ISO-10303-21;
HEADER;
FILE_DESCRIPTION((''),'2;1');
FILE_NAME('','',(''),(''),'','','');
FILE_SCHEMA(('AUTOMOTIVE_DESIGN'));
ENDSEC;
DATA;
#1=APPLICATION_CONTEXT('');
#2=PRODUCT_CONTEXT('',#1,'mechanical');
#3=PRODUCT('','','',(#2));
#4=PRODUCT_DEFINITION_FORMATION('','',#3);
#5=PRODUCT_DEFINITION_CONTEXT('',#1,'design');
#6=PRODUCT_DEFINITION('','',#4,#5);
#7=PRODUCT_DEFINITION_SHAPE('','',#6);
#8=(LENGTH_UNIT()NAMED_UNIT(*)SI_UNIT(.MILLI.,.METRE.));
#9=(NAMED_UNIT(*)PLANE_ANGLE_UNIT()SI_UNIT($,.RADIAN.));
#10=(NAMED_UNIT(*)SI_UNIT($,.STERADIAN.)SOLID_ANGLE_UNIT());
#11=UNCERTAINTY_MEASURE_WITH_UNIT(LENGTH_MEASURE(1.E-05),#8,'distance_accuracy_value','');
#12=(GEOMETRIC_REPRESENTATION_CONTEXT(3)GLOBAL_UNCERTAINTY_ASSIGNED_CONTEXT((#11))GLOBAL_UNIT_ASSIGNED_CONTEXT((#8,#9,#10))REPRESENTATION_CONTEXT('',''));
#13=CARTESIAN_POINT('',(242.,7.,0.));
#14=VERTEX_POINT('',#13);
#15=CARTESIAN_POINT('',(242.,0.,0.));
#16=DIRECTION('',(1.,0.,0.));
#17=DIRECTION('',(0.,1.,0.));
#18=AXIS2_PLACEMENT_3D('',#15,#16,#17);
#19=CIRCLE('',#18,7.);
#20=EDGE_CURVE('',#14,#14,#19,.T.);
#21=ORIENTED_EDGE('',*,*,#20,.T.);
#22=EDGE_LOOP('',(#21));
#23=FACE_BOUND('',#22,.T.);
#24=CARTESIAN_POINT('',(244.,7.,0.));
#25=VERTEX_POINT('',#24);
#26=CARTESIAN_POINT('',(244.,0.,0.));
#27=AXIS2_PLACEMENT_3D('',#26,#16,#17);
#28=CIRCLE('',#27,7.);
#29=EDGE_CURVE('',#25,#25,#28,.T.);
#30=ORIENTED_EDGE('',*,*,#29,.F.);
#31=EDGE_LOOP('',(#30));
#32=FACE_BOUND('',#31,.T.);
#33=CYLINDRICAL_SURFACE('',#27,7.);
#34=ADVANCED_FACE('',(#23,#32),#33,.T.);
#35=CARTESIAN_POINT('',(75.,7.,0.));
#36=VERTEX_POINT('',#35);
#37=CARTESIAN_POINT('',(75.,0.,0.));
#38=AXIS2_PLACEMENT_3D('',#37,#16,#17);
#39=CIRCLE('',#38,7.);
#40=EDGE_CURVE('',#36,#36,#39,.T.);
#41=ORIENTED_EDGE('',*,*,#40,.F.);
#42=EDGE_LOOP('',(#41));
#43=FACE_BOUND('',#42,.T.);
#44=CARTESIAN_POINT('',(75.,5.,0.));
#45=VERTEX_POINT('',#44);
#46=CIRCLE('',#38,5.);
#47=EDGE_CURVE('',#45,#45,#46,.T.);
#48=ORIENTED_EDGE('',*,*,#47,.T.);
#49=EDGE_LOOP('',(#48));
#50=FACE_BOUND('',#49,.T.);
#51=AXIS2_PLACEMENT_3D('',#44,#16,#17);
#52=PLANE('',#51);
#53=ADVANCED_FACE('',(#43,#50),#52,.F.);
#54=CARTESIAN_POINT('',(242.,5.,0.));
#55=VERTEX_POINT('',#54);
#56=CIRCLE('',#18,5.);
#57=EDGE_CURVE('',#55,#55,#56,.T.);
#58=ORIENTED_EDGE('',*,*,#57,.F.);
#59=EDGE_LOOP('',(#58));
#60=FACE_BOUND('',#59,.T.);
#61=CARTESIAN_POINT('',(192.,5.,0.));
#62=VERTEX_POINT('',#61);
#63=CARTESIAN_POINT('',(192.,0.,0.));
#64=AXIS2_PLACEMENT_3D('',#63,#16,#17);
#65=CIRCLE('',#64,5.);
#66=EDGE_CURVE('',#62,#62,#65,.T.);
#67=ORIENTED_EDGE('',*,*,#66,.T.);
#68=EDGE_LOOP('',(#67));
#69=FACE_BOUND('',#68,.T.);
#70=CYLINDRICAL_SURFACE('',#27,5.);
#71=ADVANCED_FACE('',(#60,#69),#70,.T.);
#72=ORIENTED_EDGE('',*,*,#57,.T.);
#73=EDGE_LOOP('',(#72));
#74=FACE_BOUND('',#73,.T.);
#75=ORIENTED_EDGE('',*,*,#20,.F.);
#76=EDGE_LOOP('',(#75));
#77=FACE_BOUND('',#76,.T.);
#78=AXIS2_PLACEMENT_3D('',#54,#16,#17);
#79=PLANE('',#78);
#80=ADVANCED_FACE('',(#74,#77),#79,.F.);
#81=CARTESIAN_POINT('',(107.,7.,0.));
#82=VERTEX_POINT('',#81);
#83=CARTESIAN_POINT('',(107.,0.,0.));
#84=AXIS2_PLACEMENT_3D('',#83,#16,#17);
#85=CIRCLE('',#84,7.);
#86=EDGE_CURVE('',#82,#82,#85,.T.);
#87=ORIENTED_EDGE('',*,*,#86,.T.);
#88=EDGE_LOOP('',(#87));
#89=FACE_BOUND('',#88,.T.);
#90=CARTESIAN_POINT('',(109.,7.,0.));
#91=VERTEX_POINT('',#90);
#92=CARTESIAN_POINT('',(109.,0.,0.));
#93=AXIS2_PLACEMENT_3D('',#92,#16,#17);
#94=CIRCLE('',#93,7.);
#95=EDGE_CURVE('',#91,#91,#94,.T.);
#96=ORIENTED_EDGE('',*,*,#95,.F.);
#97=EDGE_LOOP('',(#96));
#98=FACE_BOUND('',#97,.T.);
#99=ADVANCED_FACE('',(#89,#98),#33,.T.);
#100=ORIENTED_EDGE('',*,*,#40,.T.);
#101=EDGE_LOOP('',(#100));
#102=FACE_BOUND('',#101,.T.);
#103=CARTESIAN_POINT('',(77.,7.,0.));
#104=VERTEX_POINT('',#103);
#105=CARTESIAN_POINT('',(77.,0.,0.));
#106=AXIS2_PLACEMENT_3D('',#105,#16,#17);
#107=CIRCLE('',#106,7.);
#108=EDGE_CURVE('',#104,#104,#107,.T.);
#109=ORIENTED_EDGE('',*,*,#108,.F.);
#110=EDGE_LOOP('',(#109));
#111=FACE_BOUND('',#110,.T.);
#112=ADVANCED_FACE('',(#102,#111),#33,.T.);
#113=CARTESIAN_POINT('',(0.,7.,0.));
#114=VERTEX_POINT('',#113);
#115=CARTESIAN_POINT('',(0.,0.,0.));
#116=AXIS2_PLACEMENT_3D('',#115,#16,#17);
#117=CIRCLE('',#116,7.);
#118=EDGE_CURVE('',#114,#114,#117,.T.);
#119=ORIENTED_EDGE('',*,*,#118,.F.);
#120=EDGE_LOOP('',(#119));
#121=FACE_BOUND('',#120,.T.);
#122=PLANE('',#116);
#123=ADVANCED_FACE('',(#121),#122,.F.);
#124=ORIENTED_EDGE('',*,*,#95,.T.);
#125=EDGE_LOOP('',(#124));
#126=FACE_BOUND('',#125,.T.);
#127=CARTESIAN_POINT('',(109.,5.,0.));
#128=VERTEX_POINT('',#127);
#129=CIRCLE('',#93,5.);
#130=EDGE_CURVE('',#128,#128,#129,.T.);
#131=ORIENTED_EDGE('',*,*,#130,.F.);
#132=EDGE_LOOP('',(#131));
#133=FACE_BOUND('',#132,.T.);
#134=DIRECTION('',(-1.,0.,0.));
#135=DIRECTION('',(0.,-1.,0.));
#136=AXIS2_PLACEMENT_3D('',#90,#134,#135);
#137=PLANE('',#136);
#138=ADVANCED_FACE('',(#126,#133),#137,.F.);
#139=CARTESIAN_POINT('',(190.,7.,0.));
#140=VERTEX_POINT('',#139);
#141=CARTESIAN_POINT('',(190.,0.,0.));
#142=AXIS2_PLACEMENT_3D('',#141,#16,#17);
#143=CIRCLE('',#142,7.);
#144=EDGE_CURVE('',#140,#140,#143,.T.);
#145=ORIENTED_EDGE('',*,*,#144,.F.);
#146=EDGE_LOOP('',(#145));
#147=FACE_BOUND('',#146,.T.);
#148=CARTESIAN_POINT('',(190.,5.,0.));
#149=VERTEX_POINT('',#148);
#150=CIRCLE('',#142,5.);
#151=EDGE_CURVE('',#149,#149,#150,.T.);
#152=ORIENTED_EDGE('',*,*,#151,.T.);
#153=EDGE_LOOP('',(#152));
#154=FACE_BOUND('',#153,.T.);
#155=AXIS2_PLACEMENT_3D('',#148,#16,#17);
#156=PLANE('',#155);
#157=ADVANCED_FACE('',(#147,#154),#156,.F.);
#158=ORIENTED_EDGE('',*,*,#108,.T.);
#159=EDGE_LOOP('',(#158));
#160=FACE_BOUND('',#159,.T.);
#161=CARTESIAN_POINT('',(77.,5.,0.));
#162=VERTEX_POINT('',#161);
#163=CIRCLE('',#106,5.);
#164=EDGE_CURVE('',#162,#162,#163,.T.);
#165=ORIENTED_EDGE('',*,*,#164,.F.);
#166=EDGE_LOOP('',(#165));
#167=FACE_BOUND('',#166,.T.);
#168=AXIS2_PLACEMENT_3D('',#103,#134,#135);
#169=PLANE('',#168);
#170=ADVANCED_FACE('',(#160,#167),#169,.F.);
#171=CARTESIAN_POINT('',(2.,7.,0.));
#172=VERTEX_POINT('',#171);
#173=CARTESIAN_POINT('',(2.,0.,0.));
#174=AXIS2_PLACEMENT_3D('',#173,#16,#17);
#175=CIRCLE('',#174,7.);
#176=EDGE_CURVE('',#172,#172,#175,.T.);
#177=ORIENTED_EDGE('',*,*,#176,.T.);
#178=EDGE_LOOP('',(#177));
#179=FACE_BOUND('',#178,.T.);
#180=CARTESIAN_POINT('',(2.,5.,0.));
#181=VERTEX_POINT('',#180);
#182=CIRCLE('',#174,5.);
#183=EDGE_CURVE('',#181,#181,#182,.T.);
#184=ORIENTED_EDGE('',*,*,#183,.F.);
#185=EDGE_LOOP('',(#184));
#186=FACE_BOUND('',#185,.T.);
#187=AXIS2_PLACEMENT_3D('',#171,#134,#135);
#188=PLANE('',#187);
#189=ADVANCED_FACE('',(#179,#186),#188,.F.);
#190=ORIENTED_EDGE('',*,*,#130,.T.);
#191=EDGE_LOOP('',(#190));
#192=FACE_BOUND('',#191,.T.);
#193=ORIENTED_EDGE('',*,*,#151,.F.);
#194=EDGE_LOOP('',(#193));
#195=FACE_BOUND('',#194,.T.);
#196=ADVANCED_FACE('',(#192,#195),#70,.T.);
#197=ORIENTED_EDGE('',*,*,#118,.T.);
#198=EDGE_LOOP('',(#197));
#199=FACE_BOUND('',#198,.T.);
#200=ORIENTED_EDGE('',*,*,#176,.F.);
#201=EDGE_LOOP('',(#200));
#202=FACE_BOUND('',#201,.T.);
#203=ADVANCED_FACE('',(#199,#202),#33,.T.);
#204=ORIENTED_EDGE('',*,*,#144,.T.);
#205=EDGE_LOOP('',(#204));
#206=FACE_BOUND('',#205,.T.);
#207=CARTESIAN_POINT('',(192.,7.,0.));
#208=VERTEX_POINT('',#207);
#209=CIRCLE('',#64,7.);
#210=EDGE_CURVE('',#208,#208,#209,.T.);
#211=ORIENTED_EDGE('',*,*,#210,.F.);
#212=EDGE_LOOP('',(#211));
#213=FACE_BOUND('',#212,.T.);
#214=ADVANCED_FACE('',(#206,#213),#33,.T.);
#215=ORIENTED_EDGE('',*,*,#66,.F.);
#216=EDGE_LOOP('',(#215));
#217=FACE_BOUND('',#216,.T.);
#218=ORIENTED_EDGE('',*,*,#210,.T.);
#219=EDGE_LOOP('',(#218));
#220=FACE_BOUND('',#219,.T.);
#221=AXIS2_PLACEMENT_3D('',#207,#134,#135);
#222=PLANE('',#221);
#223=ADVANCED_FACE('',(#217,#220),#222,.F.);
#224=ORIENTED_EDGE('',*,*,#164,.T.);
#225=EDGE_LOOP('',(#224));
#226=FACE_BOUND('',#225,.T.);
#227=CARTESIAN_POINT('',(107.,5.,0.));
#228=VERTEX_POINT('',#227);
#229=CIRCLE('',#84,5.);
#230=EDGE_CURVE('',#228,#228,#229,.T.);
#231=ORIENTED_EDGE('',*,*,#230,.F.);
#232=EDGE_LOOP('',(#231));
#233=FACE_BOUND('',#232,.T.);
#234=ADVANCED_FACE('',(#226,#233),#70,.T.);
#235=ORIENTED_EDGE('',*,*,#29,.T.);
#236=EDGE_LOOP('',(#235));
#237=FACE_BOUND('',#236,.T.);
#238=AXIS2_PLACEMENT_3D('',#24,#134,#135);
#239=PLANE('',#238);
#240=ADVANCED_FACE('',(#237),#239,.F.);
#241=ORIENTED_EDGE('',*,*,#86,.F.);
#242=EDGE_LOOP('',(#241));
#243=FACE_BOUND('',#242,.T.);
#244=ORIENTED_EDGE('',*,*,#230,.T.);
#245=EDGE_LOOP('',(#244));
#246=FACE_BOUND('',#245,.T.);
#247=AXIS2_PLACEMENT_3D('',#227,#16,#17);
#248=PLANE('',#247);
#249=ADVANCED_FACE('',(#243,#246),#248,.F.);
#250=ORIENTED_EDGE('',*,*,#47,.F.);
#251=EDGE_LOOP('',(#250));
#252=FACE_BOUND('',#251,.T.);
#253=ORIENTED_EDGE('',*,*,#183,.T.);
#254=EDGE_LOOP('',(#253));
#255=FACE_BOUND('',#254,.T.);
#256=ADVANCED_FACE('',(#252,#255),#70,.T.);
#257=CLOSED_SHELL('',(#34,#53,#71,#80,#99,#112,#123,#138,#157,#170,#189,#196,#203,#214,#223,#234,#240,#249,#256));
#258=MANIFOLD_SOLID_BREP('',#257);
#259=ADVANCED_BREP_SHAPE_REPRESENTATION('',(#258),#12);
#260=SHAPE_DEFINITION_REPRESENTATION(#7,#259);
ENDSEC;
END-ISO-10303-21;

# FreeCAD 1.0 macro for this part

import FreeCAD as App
import Part
import Sketcher
from FreeCAD import Vector

doc = App.newDocument("Part")
body = doc.addObject("PartDesign::Body", "Body")

# Sketch on XY plane
sketch1 = body.newObject("Sketcher::SketchObject", "Sketch")
sketch1.AttachmentSupport = (doc.getObject("XY_Plane"), [""])
sketch1.MapMode = "FlatFace"
sketch1.addGeometry([
    Part.LineSegment(Vector(0, 7, 0), Vector(0, 0, 0)),  # 0
    Part.LineSegment(Vector(0, 0, 0), Vector(244, 0, 0)),  # 1
    Part.LineSegment(Vector(244, 0, 0), Vector(244, 7, 0)),  # 2
    Part.LineSegment(Vector(244, 7, 0), Vector(242, 7, 0)),  # 3
    Part.LineSegment(Vector(242, 7, 0), Vector(242, 5, 0)),  # 4
    Part.LineSegment(Vector(242, 5, 0), Vector(192, 5, 0)),  # 5
    Part.LineSegment(Vector(192, 5, 0), Vector(192, 7, 0)),  # 6
    Part.LineSegment(Vector(192, 7, 0), Vector(190, 7, 0)),  # 7
    Part.LineSegment(Vector(190, 7, 0), Vector(190, 5, 0)),  # 8
    Part.LineSegment(Vector(190, 5, 0), Vector(109, 5, 0)),  # 9
    Part.LineSegment(Vector(109, 5, 0), Vector(109, 7, 0)),  # 10
    Part.LineSegment(Vector(109, 7, 0), Vector(107, 7, 0)),  # 11
    Part.LineSegment(Vector(107, 7, 0), Vector(107, 5, 0)),  # 12
    Part.LineSegment(Vector(107, 5, 0), Vector(77, 5, 0)),  # 13
    Part.LineSegment(Vector(77, 5, 0), Vector(77, 7, 0)),  # 14
    Part.LineSegment(Vector(77, 7, 0), Vector(75, 7, 0)),  # 15
    Part.LineSegment(Vector(75, 7, 0), Vector(75, 5, 0)),  # 16
    Part.LineSegment(Vector(75, 5, 0), Vector(2, 5, 0)),  # 17
    Part.LineSegment(Vector(2, 5, 0), Vector(2, 7, 0)),  # 18
    Part.LineSegment(Vector(2, 7, 0), Vector(0, 7, 0)),  # 19
], False)
sketch1.addConstraint([
    Sketcher.Constraint("Coincident", 0, 2, 1, 1),
    Sketcher.Constraint("Coincident", 1, 2, 2, 1),
    Sketcher.Constraint("Coincident", 2, 2, 3, 1),
    Sketcher.Constraint("Coincident", 3, 2, 4, 1),
    Sketcher.Constraint("Coincident", 4, 2, 5, 1),
    Sketcher.Constraint("Coincident", 5, 2, 6, 1),
    Sketcher.Constraint("Coincident", 6, 2, 7, 1),
    Sketcher.Constraint("Coincident", 7, 2, 8, 1),
    Sketcher.Constraint("Coincident", 8, 2, 9, 1),
    Sketcher.Constraint("Coincident", 9, 2, 10, 1),
    Sketcher.Constraint("Coincident", 10, 2, 11, 1),
    Sketcher.Constraint("Coincident", 11, 2, 12, 1),
    Sketcher.Constraint("Coincident", 12, 2, 13, 1),
    Sketcher.Constraint("Coincident", 13, 2, 14, 1),
    Sketcher.Constraint("Coincident", 14, 2, 15, 1),
    Sketcher.Constraint("Coincident", 15, 2, 16, 1),
    Sketcher.Constraint("Coincident", 16, 2, 17, 1),
    Sketcher.Constraint("Coincident", 17, 2, 18, 1),
    Sketcher.Constraint("Coincident", 18, 2, 19, 1),
    Sketcher.Constraint("Coincident", 19, 2, 0, 1),
    Sketcher.Constraint("Vertical", 0),
    Sketcher.Constraint("Horizontal", 1),
    Sketcher.Constraint("Vertical", 2),
    Sketcher.Constraint("Horizontal", 3),
    Sketcher.Constraint("Vertical", 4),
    Sketcher.Constraint("Horizontal", 5),
    Sketcher.Constraint("Vertical", 6),
    Sketcher.Constraint("Horizontal", 7),
    Sketcher.Constraint("Vertical", 8),
    Sketcher.Constraint("Horizontal", 9),
    Sketcher.Constraint("Vertical", 10),
    Sketcher.Constraint("Horizontal", 11),
    Sketcher.Constraint("Vertical", 12),
    Sketcher.Constraint("Horizontal", 13),
    Sketcher.Constraint("Vertical", 14),
    Sketcher.Constraint("Horizontal", 15),
    Sketcher.Constraint("Vertical", 16),
    Sketcher.Constraint("Horizontal", 17),
    Sketcher.Constraint("Vertical", 18),
    Sketcher.Constraint("Horizontal", 19),
    Sketcher.Constraint("Coincident", 0, 2, -1, 1),
    Sketcher.Constraint("Horizontal", 3, 2, 6, 2),
    Sketcher.Constraint("Horizontal", 5, 2, 8, 2),
    Sketcher.Constraint("Horizontal", 7, 2, 10, 2),
    Sketcher.Constraint("Horizontal", 9, 2, 12, 2),
    Sketcher.Constraint("Horizontal", 11, 2, 14, 2),
    Sketcher.Constraint("Horizontal", 13, 2, 16, 2),
    Sketcher.Constraint("Horizontal", 15, 2, 18, 2),
    Sketcher.Constraint("Equal", 3, 7),
    Sketcher.Constraint("Equal", 7, 11),
    Sketcher.Constraint("Equal", 11, 15),
    Sketcher.Constraint("Equal", 15, 19),
    Sketcher.Constraint("Equal", 19, 4),
    Sketcher.Constraint("DistanceX", 1, 1, 1, 2, 244.0),
    Sketcher.Constraint("DistanceX", 3, 2, 3, 1, 2.0),
    Sketcher.Constraint("DistanceX", 5, 2, 5, 1, 50.0),
    Sketcher.Constraint("DistanceX", 9, 2, 9, 1, 81.0),
    Sketcher.Constraint("DistanceX", 13, 2, 13, 1, 30.0),
    Sketcher.Constraint("DistanceY", 0, 2, 0, 1, 7.0),
])
revolution = body.newObject("PartDesign::Revolution", "Revolution")
revolution.Profile = sketch1
revolution.ReferenceAxis = (sketch1, ["H_Axis"])
revolution.Angle = 360

doc.recompute()
